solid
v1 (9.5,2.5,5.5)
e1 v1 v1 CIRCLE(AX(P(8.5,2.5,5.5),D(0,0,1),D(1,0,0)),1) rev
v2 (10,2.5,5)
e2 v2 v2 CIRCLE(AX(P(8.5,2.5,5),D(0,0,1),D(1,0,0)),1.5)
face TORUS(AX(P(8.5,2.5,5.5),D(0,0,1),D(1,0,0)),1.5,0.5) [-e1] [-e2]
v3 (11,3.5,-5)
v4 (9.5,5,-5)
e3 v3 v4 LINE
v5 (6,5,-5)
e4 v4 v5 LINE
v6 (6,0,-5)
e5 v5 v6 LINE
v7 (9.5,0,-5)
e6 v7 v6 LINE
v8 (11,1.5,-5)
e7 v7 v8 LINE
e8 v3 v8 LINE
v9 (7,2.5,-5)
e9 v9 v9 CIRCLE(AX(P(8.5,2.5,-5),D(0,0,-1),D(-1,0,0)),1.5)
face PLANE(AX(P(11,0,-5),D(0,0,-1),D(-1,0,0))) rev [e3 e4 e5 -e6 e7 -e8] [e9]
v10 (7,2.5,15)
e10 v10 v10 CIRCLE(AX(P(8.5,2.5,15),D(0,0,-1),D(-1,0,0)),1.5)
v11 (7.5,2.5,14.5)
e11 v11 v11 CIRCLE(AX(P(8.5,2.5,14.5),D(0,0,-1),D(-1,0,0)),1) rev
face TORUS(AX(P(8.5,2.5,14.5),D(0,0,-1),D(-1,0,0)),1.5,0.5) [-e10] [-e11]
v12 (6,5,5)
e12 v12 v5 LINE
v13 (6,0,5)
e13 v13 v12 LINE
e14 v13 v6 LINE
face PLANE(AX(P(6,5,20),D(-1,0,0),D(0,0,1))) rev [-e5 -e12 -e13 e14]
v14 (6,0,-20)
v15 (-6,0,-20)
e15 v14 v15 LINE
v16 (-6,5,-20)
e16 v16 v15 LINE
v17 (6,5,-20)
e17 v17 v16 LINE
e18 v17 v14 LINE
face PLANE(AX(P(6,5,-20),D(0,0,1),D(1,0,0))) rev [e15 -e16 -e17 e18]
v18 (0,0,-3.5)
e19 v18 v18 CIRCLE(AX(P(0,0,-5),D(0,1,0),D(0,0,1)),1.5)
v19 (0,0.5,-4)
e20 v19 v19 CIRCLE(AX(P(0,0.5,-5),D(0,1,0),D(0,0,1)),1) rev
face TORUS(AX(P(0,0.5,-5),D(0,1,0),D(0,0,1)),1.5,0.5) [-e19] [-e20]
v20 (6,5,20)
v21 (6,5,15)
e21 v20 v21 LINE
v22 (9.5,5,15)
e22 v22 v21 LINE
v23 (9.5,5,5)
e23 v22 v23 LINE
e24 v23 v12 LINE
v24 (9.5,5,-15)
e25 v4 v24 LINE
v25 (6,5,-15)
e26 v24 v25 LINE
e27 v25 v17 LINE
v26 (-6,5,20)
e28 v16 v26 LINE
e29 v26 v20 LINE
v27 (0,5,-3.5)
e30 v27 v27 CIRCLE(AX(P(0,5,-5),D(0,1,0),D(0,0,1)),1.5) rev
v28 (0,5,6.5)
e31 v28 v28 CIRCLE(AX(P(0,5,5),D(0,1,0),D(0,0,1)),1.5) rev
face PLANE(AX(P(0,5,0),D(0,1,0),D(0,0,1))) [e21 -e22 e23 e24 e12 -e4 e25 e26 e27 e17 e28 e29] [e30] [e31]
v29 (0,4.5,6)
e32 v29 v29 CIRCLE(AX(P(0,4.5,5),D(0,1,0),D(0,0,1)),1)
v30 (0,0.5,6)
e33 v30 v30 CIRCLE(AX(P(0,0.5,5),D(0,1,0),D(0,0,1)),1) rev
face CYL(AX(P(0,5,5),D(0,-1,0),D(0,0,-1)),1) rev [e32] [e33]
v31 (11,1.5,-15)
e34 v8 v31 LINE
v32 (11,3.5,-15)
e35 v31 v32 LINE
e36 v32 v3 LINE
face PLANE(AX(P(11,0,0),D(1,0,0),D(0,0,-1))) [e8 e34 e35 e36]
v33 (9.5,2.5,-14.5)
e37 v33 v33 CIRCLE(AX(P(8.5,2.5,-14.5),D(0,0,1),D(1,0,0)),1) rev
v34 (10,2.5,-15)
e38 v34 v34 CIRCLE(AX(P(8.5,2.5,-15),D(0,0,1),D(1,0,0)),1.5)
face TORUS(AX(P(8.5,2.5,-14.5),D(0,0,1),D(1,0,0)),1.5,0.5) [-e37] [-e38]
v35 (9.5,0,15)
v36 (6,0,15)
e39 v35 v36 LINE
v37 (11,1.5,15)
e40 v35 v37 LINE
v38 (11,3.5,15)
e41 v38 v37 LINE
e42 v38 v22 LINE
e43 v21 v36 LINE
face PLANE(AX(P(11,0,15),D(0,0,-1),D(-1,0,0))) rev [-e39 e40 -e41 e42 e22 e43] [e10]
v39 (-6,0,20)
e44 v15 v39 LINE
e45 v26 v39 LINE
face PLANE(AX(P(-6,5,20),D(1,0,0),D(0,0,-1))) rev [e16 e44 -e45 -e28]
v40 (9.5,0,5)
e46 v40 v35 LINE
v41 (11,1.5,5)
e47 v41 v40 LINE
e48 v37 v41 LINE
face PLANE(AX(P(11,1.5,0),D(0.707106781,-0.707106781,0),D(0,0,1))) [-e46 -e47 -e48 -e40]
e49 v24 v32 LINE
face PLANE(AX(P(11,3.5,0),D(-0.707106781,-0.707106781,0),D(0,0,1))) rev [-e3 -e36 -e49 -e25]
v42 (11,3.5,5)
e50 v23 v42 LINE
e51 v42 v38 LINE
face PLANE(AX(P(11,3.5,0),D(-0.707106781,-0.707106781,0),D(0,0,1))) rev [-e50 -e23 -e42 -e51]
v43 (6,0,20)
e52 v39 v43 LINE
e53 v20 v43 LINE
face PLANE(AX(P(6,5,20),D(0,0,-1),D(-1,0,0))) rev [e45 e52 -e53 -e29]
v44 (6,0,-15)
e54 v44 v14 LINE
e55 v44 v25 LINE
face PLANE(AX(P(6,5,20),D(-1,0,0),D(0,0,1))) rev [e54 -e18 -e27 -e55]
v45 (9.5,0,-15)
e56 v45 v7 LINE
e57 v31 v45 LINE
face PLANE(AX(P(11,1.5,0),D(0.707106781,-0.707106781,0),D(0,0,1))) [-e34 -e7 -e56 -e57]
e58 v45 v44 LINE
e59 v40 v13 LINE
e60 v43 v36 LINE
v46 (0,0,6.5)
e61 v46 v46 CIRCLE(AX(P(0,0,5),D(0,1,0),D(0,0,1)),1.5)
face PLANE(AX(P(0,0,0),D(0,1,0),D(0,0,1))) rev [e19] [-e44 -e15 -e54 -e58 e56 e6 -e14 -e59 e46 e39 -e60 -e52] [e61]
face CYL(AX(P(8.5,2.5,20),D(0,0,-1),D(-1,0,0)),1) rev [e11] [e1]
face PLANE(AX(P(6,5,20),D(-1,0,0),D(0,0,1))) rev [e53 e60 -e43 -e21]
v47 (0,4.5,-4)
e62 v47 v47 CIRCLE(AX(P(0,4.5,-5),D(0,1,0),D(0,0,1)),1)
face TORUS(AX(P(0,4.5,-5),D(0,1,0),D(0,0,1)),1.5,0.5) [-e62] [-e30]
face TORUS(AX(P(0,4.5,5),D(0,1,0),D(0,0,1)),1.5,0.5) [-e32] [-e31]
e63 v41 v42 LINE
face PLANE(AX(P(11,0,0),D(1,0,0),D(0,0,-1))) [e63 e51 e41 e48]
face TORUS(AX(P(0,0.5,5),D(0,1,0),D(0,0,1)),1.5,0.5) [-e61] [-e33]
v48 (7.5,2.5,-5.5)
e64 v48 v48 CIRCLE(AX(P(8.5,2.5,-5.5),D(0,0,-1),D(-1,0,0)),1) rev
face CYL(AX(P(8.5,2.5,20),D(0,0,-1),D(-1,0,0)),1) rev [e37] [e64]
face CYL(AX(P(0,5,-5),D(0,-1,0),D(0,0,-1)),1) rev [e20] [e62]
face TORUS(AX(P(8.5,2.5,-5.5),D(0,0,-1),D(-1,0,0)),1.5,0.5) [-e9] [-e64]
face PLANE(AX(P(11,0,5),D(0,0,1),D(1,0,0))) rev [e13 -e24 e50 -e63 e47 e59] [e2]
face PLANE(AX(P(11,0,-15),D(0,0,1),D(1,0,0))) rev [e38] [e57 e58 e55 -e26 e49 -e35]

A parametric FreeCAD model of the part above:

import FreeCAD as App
import Part
import Sketcher

V = App.Vector
Q = App.Units.Quantity


def edges_at(feature, points):
    """Names of the edges that pass closest to the given points."""
    edges = feature.Shape.Edges
    near = lambda p: min(range(len(edges)), key=lambda i: edges[i].distToShape(Part.Vertex(*p))[0])
    return sorted({f"Edge{near(p) + 1}" for p in points})

doc = App.newDocument("Part")
body = doc.addObject("PartDesign::Body", "Body")

# Sketch on XZ plane
sketch1 = body.newObject("Sketcher::SketchObject", "Sketch")
sketch1.AttachmentSupport = (doc.getObject("XZ_Plane"), [""])
sketch1.MapMode = "FlatFace"
sketch1.addGeometry(Part.LineSegment(V(-6, -20, 0), V(-6, 20, 0)), False)
sketch1.addGeometry(Part.LineSegment(V(-6, 20, 0), V(6, 20, 0)), False)
sketch1.addGeometry(Part.LineSegment(V(6, 20, 0), V(6, -20, 0)), False)
sketch1.addGeometry(Part.LineSegment(V(6, -20, 0), V(-6, -20, 0)), False)
sketch1.addGeometry(Part.Circle(V(0, 5, 0), V(0, 0, 1), 1), False)
sketch1.addGeometry(Part.Circle(V(0, -5, 0), V(0, 0, 1), 1), False)
sketch1.addConstraint(Sketcher.Constraint("Coincident", 0, 2, 1, 1))
sketch1.addConstraint(Sketcher.Constraint("Coincident", 1, 2, 2, 1))
sketch1.addConstraint(Sketcher.Constraint("Coincident", 2, 2, 3, 1))
sketch1.addConstraint(Sketcher.Constraint("Coincident", 3, 2, 0, 1))
sketch1.addConstraint(Sketcher.Constraint("Vertical", 0))
sketch1.addConstraint(Sketcher.Constraint("Horizontal", 1))
sketch1.addConstraint(Sketcher.Constraint("Vertical", 2))
sketch1.addConstraint(Sketcher.Constraint("Horizontal", 3))
sketch1.addConstraint(Sketcher.Constraint("Equal", 4, 5))
sketch1.addConstraint(Sketcher.Constraint("Symmetric", 4, 3, 5, 3, -1, 1))
sketch1.addConstraint(Sketcher.Constraint("Symmetric", 0, 2, 2, 2, -1, 1))
sketch1.addConstraint(Sketcher.Constraint("PointOnObject", 4, 3, -2))
sketch1.addConstraint(Sketcher.Constraint("Diameter", 4, Q("2 mm")))
sketch1.addConstraint(Sketcher.Constraint("DistanceX", 1, 1, 1, 2, Q("12 mm")))
sketch1.addConstraint(Sketcher.Constraint("DistanceY", 0, 1, 0, 2, Q("40 mm")))
sketch1.addConstraint(Sketcher.Constraint("DistanceY", -1, 1, 4, 3, Q("5 mm")))
pad1 = body.newObject("PartDesign::Pad", "Pad")
pad1.Profile = sketch1
pad1.Length = 5
pad1.Reversed = True

# Sketch on YZ plane
sketch2 = body.newObject("Sketcher::SketchObject", "Sketch001")
sketch2.AttachmentSupport = (doc.getObject("YZ_Plane"), [""])
sketch2.MapMode = "FlatFace"
sketch2.AttachmentOffset = App.Placement(V(0, 0, 6), App.Rotation())
sketch2.addGeometry(Part.LineSegment(V(5, 15, 0), V(0, 15, 0)), False)
sketch2.addGeometry(Part.LineSegment(V(0, 15, 0), V(0, 5, 0)), False)
sketch2.addGeometry(Part.LineSegment(V(0, 5, 0), V(5, 5, 0)), False)
sketch2.addGeometry(Part.LineSegment(V(5, 5, 0), V(5, 15, 0)), False)
sketch2.addGeometry(Part.LineSegment(V(5, -5, 0), V(0, -5, 0)), False)
sketch2.addGeometry(Part.LineSegment(V(0, -5, 0), V(0, -15, 0)), False)
sketch2.addGeometry(Part.LineSegment(V(0, -15, 0), V(5, -15, 0)), False)
sketch2.addGeometry(Part.LineSegment(V(5, -15, 0), V(5, -5, 0)), False)
sketch2.addConstraint(Sketcher.Constraint("Coincident", 0, 2, 1, 1))
sketch2.addConstraint(Sketcher.Constraint("Coincident", 1, 2, 2, 1))
sketch2.addConstraint(Sketcher.Constraint("Coincident", 2, 2, 3, 1))
sketch2.addConstraint(Sketcher.Constraint("Coincident", 3, 2, 0, 1))
sketch2.addConstraint(Sketcher.Constraint("Coincident", 4, 2, 5, 1))
sketch2.addConstraint(Sketcher.Constraint("Coincident", 5, 2, 6, 1))
sketch2.addConstraint(Sketcher.Constraint("Coincident", 6, 2, 7, 1))
sketch2.addConstraint(Sketcher.Constraint("Coincident", 7, 2, 4, 1))
sketch2.addConstraint(Sketcher.Constraint("Horizontal", 0))
sketch2.addConstraint(Sketcher.Constraint("Vertical", 1))
sketch2.addConstraint(Sketcher.Constraint("Horizontal", 2))
sketch2.addConstraint(Sketcher.Constraint("Vertical", 3))
sketch2.addConstraint(Sketcher.Constraint("Horizontal", 4))
sketch2.addConstraint(Sketcher.Constraint("Vertical", 5))
sketch2.addConstraint(Sketcher.Constraint("Horizontal", 6))
sketch2.addConstraint(Sketcher.Constraint("Vertical", 7))
sketch2.addConstraint(Sketcher.Constraint("Symmetric", 1, 2, 4, 2, -1, 1))
sketch2.addConstraint(Sketcher.Constraint("Symmetric", 0, 2, 5, 2, -1))
sketch2.addConstraint(Sketcher.Constraint("Vertical", 3, 2, 6, 2))
sketch2.addConstraint(Sketcher.Constraint("DistanceX", 0, 2, 0, 1, Q("5 mm")))
sketch2.addConstraint(Sketcher.Constraint("DistanceY", 1, 2, 1, 1, Q("10 mm")))
sketch2.addConstraint(Sketcher.Constraint("DistanceY", -1, 1, 0, 2, Q("15 mm")))
pad2 = body.newObject("PartDesign::Pad", "Pad001")
pad2.Profile = sketch2
pad2.Length = 5

# Sketch on XY plane
sketch3 = body.newObject("Sketcher::SketchObject", "Sketch002")
sketch3.AttachmentSupport = (doc.getObject("XY_Plane"), [""])
sketch3.MapMode = "FlatFace"
sketch3.AttachmentOffset = App.Placement(V(0, 0, -15), App.Rotation())
sketch3.addGeometry(Part.Circle(V(8.5, 2.5, 0), V(0, 0, 1), 1), False)
sketch3.addConstraint(Sketcher.Constraint("Diameter", 0, Q("2 mm")))
sketch3.addConstraint(Sketcher.Constraint("DistanceX", -1, 1, 0, 3, Q("8.5 mm")))
sketch3.addConstraint(Sketcher.Constraint("DistanceY", -1, 1, 0, 3, Q("2.5 mm")))
pocket1 = body.newObject("PartDesign::Pocket", "Pocket")
pocket1.Profile = sketch3
pocket1.Type = "ThroughAll"
pocket1.Midplane = True
doc.recompute()

fillet = body.newObject("PartDesign::Fillet", "Fillet")
fillet.Base = (pocket1, edges_at(pocket1, [
    (0, 0, -6),
    (0, 5, -6),
    (0, 0, 4),
    (0, 5, 4),
    (9.5, 2.5, 5),
    (9.5, 2.5, 15),
    (9.5, 2.5, -15),
    (9.5, 2.5, -5),
]))
fillet.Radius = 0.5
doc.recompute()

chamfer = body.newObject("PartDesign::Chamfer", "Chamfer")
chamfer.Base = (fillet, edges_at(fillet, [
    (11, 0, 10),
    (11, 5, 10),
    (11, 0, -10),
    (11, 5, -10),
]))
chamfer.Size = 1.5

doc.recompute()
